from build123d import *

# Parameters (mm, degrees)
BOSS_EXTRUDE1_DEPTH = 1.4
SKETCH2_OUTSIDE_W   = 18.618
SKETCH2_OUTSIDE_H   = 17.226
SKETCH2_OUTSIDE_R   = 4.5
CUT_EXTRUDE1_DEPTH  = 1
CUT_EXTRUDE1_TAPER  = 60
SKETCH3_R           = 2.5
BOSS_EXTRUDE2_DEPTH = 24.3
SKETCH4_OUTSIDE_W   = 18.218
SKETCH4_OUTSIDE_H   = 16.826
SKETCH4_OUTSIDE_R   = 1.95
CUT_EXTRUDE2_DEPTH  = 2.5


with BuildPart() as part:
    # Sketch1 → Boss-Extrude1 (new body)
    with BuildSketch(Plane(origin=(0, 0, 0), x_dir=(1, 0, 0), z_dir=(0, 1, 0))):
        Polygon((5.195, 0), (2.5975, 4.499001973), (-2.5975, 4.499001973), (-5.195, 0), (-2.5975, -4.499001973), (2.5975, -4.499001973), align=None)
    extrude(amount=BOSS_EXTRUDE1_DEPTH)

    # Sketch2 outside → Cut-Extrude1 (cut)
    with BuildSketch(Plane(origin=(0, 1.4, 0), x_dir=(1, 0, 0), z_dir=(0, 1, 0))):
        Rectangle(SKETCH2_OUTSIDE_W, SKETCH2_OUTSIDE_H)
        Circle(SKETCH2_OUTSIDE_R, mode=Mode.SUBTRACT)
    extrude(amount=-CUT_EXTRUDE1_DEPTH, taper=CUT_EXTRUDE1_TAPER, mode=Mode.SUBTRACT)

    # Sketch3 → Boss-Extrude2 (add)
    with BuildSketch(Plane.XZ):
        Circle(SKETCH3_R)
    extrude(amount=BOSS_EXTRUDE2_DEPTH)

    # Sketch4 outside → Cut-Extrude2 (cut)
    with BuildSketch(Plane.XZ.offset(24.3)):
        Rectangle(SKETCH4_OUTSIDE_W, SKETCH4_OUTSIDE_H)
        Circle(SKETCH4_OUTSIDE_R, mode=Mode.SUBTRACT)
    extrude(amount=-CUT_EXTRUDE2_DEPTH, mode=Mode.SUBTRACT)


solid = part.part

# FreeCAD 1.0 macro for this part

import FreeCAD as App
import Part
import Sketcher
from FreeCAD import Vector
Q = App.Units.Quantity


def add_polygon(sketch, points):
    """Adds a closed chain of lines whose ends are joined by coincident constraints."""
    first, n = sketch.GeometryCount, len(points)
    for a, b in zip(points, points[1:] + points[:1]):
        sketch.addGeometry(Part.LineSegment(App.Vector(*a, 0), App.Vector(*b, 0)), False)
    for i in range(n):
        sketch.addConstraint(Sketcher.Constraint("Coincident", first + i, 2, first + (i + 1) % n, 1))

doc = App.newDocument("Part")
body = doc.addObject("PartDesign::Body", "Body")

# Sketch on XZ plane
sketch1 = doc.addObject("Sketcher::SketchObject", "Sketch")
body.addObject(sketch1)
sketch1.AttachmentSupport = (doc.XZ_Plane, [""])
sketch1.MapMode = "FlatFace"
add_polygon(sketch1, [(5, 0), (3, -4), (-3, -4), (-5, 0), (-3, 4), (3, 4)])  # lines 0-5
sketch1.addConstraint(Sketcher.Constraint("Horizontal", 1))
sketch1.addConstraint(Sketcher.Constraint("Horizontal", 4))
sketch1.addConstraint(Sketcher.Constraint("Symmetric", 0, 2, 3, 2, -1, 1))
sketch1.addConstraint(Sketcher.Constraint("Symmetric", 2, 2, 5, 2, -1, 1))
sketch1.addConstraint(Sketcher.Constraint("PointOnObject", 2, 2, -1))
sketch1.addConstraint(Sketcher.Constraint("Parallel", 2, 5))
sketch1.addConstraint(Sketcher.Constraint("Vertical", 1, 2, 3, 2))
sketch1.addConstraint(Sketcher.Constraint("Angle", 0, Q("-120 deg")))
sketch1.addConstraint(Sketcher.Constraint("DistanceX", 1, 2, 1, 1, 5.195))
sketch1.addConstraint(Sketcher.Constraint("DistanceX", 2, 2, 5, 2, 10.39))
pad1 = doc.addObject("PartDesign::Pad", "Pad")
body.addObject(pad1)
pad1.Profile = sketch1
pad1.Length = 1.4
pad1.Reversed = True

# Sketch on XZ plane
sketch2 = doc.addObject("Sketcher::SketchObject", "Sketch001")
body.addObject(sketch2)
sketch2.AttachmentSupport = (doc.XZ_Plane, [""])
sketch2.MapMode = "FlatFace"
sketch2.AttachmentOffset = App.Placement(Vector(0, 0, -1.4), App.Rotation())
add_polygon(sketch2, [(-9.3, -8.6), (-9.3, 8.6), (9.3, 8.6), (9.3, -8.6)])  # lines 0-3
sketch2.addGeometry(Part.Circle(Vector(0, 0, 0), Vector(0, 0, 1), 4.5), False)  # 4
sketch2.addConstraint(Sketcher.Constraint("Vertical", 0))
sketch2.addConstraint(Sketcher.Constraint("Horizontal", 1))
sketch2.addConstraint(Sketcher.Constraint("Vertical", 2))
sketch2.addConstraint(Sketcher.Constraint("Horizontal", 3))
sketch2.addConstraint(Sketcher.Constraint("Coincident", 4, 3, -1, 1))
sketch2.addConstraint(Sketcher.Constraint("Symmetric", 0, 2, 2, 2, -1, 1))
sketch2.addConstraint(Sketcher.Constraint("Diameter", 4, 9.0))
sketch2.addConstraint(Sketcher.Constraint("DistanceX", 1, 1, 1, 2, 18.618))
sketch2.addConstraint(Sketcher.Constraint("DistanceY", 0, 1, 0, 2, 17.226))
pocket1 = doc.addObject("PartDesign::Pocket", "Pocket")
body.addObject(pocket1)
pocket1.Profile = sketch2
pocket1.Length = 1
pocket1.Reversed = True
pocket1.TaperAngle = 60

# Sketch on XZ plane
sketch3 = doc.addObject("Sketcher::SketchObject", "Sketch002")
body.addObject(sketch3)
sketch3.AttachmentSupport = (doc.XZ_Plane, [""])
sketch3.MapMode = "FlatFace"
sketch3.addGeometry(Part.Circle(Vector(0, 0, 0), Vector(0, 0, 1), 2.5), False)
sketch3.addConstraint(Sketcher.Constraint("Coincident", 0, 3, -1, 1))
sketch3.addConstraint(Sketcher.Constraint("Diameter", 0, 5.0))
pad2 = doc.addObject("PartDesign::Pad", "Pad001")
body.addObject(pad2)
pad2.Profile = sketch3
pad2.Length = 24.3

# Sketch on XZ plane
sketch4 = doc.addObject("Sketcher::SketchObject", "Sketch003")
body.addObject(sketch4)
sketch4.AttachmentSupport = (doc.XZ_Plane, [""])
sketch4.MapMode = "FlatFace"
sketch4.AttachmentOffset = App.Placement(Vector(0, 0, 24.3), App.Rotation())
add_polygon(sketch4, [(-9.1, 8.4), (-9.1, -8.4), (9.1, -8.4), (9.1, 8.4)])  # lines 0-3
sketch4.addGeometry(Part.Circle(Vector(0, 0, 0), Vector(0, 0, 1), 1.9), False)  # 4
sketch4.addConstraint(Sketcher.Constraint("Vertical", 0))
sketch4.addConstraint(Sketcher.Constraint("Horizontal", 1))
sketch4.addConstraint(Sketcher.Constraint("Vertical", 2))
sketch4.addConstraint(Sketcher.Constraint("Horizontal", 3))
sketch4.addConstraint(Sketcher.Constraint("Coincident", 4, 3, -1, 1))
sketch4.addConstraint(Sketcher.Constraint("Symmetric", 0, 2, 2, 2, -1, 1))
sketch4.addConstraint(Sketcher.Constraint("Diameter", 4, 3.9))
sketch4.addConstraint(Sketcher.Constraint("DistanceX", 1, 1, 1, 2, 18.218))
sketch4.addConstraint(Sketcher.Constraint("DistanceY", 0, 2, 0, 1, 16.826))
pocket2 = doc.addObject("PartDesign::Pocket", "Pocket001")
body.addObject(pocket2)
pocket2.Profile = sketch4
pocket2.Length = 2.5

doc.recompute()
